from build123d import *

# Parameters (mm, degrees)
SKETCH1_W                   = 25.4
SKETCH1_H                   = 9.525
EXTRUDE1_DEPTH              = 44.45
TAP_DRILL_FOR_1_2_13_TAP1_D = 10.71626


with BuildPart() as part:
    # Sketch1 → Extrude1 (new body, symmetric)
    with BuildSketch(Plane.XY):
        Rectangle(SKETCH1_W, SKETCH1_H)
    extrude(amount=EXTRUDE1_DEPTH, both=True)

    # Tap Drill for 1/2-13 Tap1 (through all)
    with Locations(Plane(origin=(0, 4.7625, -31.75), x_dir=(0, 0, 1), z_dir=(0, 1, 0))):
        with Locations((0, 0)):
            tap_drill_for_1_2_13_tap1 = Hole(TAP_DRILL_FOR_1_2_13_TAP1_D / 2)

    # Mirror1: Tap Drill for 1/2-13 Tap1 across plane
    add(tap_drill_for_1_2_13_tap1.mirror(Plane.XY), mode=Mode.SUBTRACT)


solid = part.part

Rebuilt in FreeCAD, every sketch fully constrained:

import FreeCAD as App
import Part
import Sketcher
Q = App.Units.Quantity


def add_polygon(sketch, points):
    """Adds a closed chain of lines whose ends are joined by coincident constraints."""
    first, n = sketch.GeometryCount, len(points)
    for a, b in zip(points, points[1:] + points[:1]):
        sketch.addGeometry(Part.LineSegment(App.Vector(*a, 0), App.Vector(*b, 0)), False)
    for i in range(n):
        sketch.addConstraint(Sketcher.Constraint("Coincident", first + i, 2, first + (i + 1) % n, 1))

doc = App.newDocument("Part")
body = doc.addObject("PartDesign::Body", "Body")

sketch1 = body.newObject("Sketcher::SketchObject", "Sketch")
sketch1.AttachmentSupport = (doc.getObject("XY_Plane"), [""])
sketch1.MapMode = "FlatFace"
add_polygon(sketch1, [(-13, 5), (-13, -5), (13, -5), (13, 5)])
sketch1.addConstraint(Sketcher.Constraint("Vertical", 0))
sketch1.addConstraint(Sketcher.Constraint("Horizontal", 1))
sketch1.addConstraint(Sketcher.Constraint("Vertical", 2))
sketch1.addConstraint(Sketcher.Constraint("Horizontal", 3))
sketch1.addConstraint(Sketcher.Constraint("Symmetric", 0, 2, 2, 2, -1, 1))
sketch1.addConstraint(Sketcher.Constraint("DistanceX", 1, 1, 1, 2, Q("1 in")))
sketch1.addConstraint(Sketcher.Constraint("DistanceY", 0, 2, 0, 1, Q("0.375 in")))
pad1 = body.newObject("PartDesign::Pad", "Pad")
pad1.Profile = sketch1
pad1.Length = Q("3.5 in")
pad1.Midplane = True

sketch2 = body.newObject("Sketcher::SketchObject", "Sketch001")
sketch2.AttachmentSupport = (doc.getObject("XZ_Plane"), [""])
sketch2.MapMode = "FlatFace"
sketch2.AttachmentOffset = App.Placement(App.Vector(0, 0, -0.1875 * 25.4), App.Rotation())
sketch2.addGeometry(Part.Circle(App.Vector(0, -32, 0), App.Vector(0, 0, 1), 5), False)
sketch2.addConstraint(Sketcher.Constraint("PointOnObject", 0, 3, -2))
sketch2.addConstraint(Sketcher.Constraint("Diameter", 0, Q("0.4219 in")))
sketch2.addConstraint(Sketcher.Constraint("DistanceY", 0, 3, -1, 1, Q("1.25 in")))
doc.recompute()
hole = body.newObject("PartDesign::Hole", "Hole")
hole.Profile = sketch2
hole.ThreadType = "None"
hole.Diameter = Q("0.4219 in")
hole.DepthType = "ThroughAll"
hole.Reversed = True
doc.recompute()

mirrored = body.newObject("PartDesign::Mirrored", "Mirrored")
mirrored.Originals = [hole]
mirrored.MirrorPlane = (doc.getObject("XY_Plane"), [""])
body.Tip = mirrored

doc.recompute()
